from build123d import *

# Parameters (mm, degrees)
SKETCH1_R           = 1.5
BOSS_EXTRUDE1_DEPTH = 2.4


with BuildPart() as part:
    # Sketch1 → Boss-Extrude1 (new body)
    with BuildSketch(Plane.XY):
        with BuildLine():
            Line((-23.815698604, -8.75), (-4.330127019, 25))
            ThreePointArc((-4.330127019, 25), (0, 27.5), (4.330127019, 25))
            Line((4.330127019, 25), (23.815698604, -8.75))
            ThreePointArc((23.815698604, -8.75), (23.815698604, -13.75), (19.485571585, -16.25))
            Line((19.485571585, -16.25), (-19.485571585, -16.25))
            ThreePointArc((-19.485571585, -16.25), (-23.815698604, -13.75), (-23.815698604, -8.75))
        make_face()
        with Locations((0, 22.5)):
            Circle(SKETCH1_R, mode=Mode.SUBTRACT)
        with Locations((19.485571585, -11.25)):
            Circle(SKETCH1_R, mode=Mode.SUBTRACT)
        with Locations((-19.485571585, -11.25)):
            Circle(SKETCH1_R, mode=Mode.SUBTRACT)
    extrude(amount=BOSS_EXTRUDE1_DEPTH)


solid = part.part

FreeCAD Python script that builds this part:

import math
import FreeCAD as App
import Part
import Sketcher

V = App.Vector
Q = App.Units.Quantity

doc = App.newDocument("Part")
body = doc.addObject("PartDesign::Body", "Body")

# Sketch on XY plane
sketch1 = doc.addObject("Sketcher::SketchObject", "Sketch")
body.addObject(sketch1)
sketch1.AttachmentSupport = (doc.XY_Plane, [""])
sketch1.MapMode = "FlatFace"
sketch1.addGeometry([
    Part.LineSegment(V(-4.330127, 25, 0), V(-23.815699, -8.75, 0)),  # 0
    Part.ArcOfCircle(Part.Circle(V(-19.485572, -11.25, 0), V(0, 0, 1), 5), math.radians(150), math.radians(270)),  # 1
    Part.LineSegment(V(-19.485572, -16.25, 0), V(19.485572, -16.25, 0)),  # 2
    Part.ArcOfCircle(Part.Circle(V(19.485572, -11.25, 0), V(0, 0, 1), 5), math.radians(-90), math.radians(30)),  # 3
    Part.LineSegment(V(23.815699, -8.75, 0), V(4.330127, 25, 0)),  # 4
    Part.ArcOfCircle(Part.Circle(V(0, 22.5, 0), V(0, 0, 1), 5), math.radians(30), math.radians(150)),  # 5
    Part.Circle(V(19.485572, -11.25, 0), V(0, 0, 1), 1.5),  # 6
    Part.Circle(V(-19.485572, -11.25, 0), V(0, 0, 1), 1.5),  # 7
    Part.Circle(V(0, 22.5, 0), V(0, 0, 1), 1.5),  # 8
], False)
sketch1.addConstraint([
    Sketcher.Constraint("Tangent", 0, 2, 1, 1),
    Sketcher.Constraint("Tangent", 1, 2, 2, 1),
    Sketcher.Constraint("Tangent", 2, 2, 3, 1),
    Sketcher.Constraint("Tangent", 3, 2, 4, 1),
    Sketcher.Constraint("Tangent", 4, 2, 5, 1),
    Sketcher.Constraint("Tangent", 5, 2, 0, 1),
    Sketcher.Constraint("Horizontal", 2),
    Sketcher.Constraint("Coincident", 6, 3, 3, 3),
    Sketcher.Constraint("Coincident", 7, 3, 1, 3),
    Sketcher.Constraint("Coincident", 8, 3, 5, 3),
    Sketcher.Constraint("Equal", 1, 3),
    Sketcher.Constraint("Equal", 3, 5),
    Sketcher.Constraint("Equal", 6, 7),
    Sketcher.Constraint("Equal", 7, 8),
    Sketcher.Constraint("Symmetric", 0, 2, 3, 2, -2),
    Sketcher.Constraint("Diameter", 6, 3.0),
    Sketcher.Constraint("Radius", 1, 5.0),
    Sketcher.Constraint("Angle", 0, Q("-120 deg")),
    Sketcher.Constraint("DistanceY", -1, 1, 4, 2, 25.0),
    Sketcher.Constraint("DistanceY", 1, 3, -1, 1, 11.25),
])
pad1 = doc.addObject("PartDesign::Pad", "Pad")
body.addObject(pad1)
pad1.Profile = sketch1
pad1.Length = 2.4

doc.recompute()
